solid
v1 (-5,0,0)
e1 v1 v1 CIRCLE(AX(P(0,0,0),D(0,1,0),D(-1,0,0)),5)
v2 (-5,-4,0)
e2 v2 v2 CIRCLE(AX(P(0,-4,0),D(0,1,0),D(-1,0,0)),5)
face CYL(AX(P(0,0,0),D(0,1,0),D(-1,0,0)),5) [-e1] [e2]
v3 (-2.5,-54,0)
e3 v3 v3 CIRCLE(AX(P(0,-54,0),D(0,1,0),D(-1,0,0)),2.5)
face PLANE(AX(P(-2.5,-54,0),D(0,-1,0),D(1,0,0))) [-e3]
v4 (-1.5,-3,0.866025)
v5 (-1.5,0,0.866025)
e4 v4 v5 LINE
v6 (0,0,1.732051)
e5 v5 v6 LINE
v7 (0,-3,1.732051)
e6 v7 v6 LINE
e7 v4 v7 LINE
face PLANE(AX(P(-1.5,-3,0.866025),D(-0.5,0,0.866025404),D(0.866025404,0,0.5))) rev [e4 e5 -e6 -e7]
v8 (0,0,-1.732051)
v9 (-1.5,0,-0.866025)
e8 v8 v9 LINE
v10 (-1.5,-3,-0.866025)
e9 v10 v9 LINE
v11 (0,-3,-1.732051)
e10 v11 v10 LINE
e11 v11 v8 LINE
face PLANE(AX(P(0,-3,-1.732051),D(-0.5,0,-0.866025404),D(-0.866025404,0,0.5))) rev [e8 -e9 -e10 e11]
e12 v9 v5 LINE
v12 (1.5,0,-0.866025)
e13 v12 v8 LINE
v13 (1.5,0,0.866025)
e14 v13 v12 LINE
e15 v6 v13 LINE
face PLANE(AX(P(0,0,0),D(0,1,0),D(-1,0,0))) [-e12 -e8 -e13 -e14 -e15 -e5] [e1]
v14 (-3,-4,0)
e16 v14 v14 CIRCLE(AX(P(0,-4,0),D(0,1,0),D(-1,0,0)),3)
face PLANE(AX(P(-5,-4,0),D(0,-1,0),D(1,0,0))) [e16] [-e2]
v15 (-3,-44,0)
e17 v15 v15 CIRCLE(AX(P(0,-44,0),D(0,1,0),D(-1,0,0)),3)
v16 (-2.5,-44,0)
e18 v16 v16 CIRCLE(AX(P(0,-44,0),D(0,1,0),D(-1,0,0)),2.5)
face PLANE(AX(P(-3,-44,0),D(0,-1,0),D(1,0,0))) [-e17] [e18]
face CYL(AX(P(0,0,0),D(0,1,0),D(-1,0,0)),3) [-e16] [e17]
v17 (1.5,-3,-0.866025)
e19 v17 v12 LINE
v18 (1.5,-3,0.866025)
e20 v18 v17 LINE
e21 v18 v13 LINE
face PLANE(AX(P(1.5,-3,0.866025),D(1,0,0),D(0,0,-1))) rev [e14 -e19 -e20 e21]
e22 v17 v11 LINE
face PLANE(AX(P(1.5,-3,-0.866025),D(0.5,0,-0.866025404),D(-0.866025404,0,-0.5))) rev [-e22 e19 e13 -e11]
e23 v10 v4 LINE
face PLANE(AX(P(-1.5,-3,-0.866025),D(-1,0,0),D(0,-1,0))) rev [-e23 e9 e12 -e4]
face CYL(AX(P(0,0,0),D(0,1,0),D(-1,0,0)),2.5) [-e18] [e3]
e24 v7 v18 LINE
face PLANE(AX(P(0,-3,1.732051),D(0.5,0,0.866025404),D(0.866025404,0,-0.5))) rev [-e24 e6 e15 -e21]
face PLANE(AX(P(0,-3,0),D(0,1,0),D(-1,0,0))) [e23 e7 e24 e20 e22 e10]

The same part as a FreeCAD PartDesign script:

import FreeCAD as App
import Part
import Sketcher
from FreeCAD import Vector
Q = App.Units.Quantity


def add_polygon(sketch, points):
    """Adds a closed chain of lines whose ends are joined by coincident constraints."""
    first, n = sketch.GeometryCount, len(points)
    for a, b in zip(points, points[1:] + points[:1]):
        sketch.addGeometry(Part.LineSegment(App.Vector(*a, 0), App.Vector(*b, 0)), False)
    for i in range(n):
        sketch.addConstraint(Sketcher.Constraint("Coincident", first + i, 2, first + (i + 1) % n, 1))

doc = App.newDocument("Part")
params = doc.addObject("Spreadsheet::Sheet", "Params")
for row, (alias, value) in enumerate([
    ("sketch1_width", "5 mm"),
    ("sketch1_width2", "2 mm"),
    ("sketch1_height", "4 mm"),
    ("sketch1_height2", "40 mm"),
    ("sketch1_height3", "10 mm"),
    ("revolution_angle", "360 deg"),
    ("pocket1_length", "3 mm"),
], start=1):
    params.set(f"A{row}", alias)
    params.set(f"B{row}", "=" + value)
    params.setAlias(f"B{row}", alias)

body = doc.addObject("PartDesign::Body", "Body")

# Sketch on XY plane
sketch1 = body.newObject("Sketcher::SketchObject", "Sketch")
sketch1.AttachmentSupport = (doc.getObject("XY_Plane"), [""])
sketch1.MapMode = "FlatFace"
add_polygon(sketch1, [(0, 0), (-5, 0), (-5, -4), (-3, -4), (-3, -44), (-2.5, -44), (-2.5, -54), (0, -54)])  # lines 0-7
sketch1.addConstraint([
    Sketcher.Constraint("Horizontal", 0),
    Sketcher.Constraint("Vertical", 1),
    Sketcher.Constraint("Horizontal", 2),
    Sketcher.Constraint("Vertical", 3),
    Sketcher.Constraint("Horizontal", 4),
    Sketcher.Constraint("Vertical", 5),
    Sketcher.Constraint("Horizontal", 6),
    Sketcher.Constraint("Vertical", 7),
    Sketcher.Constraint("Coincident", 7, 2, -1, 1),
    Sketcher.Constraint("DistanceX", 0, 2, 0, 1, Q("5 mm")),
    Sketcher.Constraint("DistanceX", 2, 1, 2, 2, Q("2 mm")),
    Sketcher.Constraint("DistanceY", 1, 2, 1, 1, Q("4 mm")),
    Sketcher.Constraint("DistanceY", 3, 2, 3, 1, Q("40 mm")),
    Sketcher.Constraint("DistanceY", 5, 2, 5, 1, Q("10 mm")),
    Sketcher.Constraint("DistanceX", 4, 1, 4, 2, Q("0.5 mm")),
])
sketch1.setExpression("Constraints[17]", "Params.sketch1_width")
sketch1.setExpression("Constraints[18]", "Params.sketch1_width2")
sketch1.setExpression("Constraints[19]", "Params.sketch1_height")
sketch1.setExpression("Constraints[20]", "Params.sketch1_height2")
sketch1.setExpression("Constraints[21]", "Params.sketch1_height3")
revolution = body.newObject("PartDesign::Revolution", "Revolution")
revolution.Profile = sketch1
revolution.ReferenceAxis = (sketch1, ["V_Axis"])
revolution.setExpression("Angle", "Params.revolution_angle")

# Sketch on XZ plane
sketch2 = body.newObject("Sketcher::SketchObject", "Sketch001")
sketch2.AttachmentSupport = (doc.getObject("XZ_Plane"), [""])
sketch2.MapMode = "FlatFace"
add_polygon(sketch2, [(1.5, -0.9), (0, -1.7), (-1.5, -0.9), (-1.5, 0.9), (0, 1.7), (1.5, 0.9)])  # lines 0-5
sketch2.addConstraint([
    Sketcher.Constraint("Vertical", 2),
    Sketcher.Constraint("Vertical", 5),
    Sketcher.Constraint("Symmetric", 0, 2, 3, 2, -1, 1),
    Sketcher.Constraint("Symmetric", 1, 2, 4, 2, -1, 1),
    Sketcher.Constraint("PointOnObject", 0, 2, -2),
    Sketcher.Constraint("Parallel", 0, 3),
    Sketcher.Constraint("Horizontal", 2, 2, 4, 2),
    Sketcher.Constraint("Angle", 0, Q("-150 deg")),
    Sketcher.Constraint("DistanceX", 2, 2, 4, 2, Q("3 mm")),
    Sketcher.Constraint("DistanceY", 2, 1, 2, 2, Q("1.732051 mm")),
])
pocket1 = body.newObject("PartDesign::Pocket", "Pocket")
pocket1.Profile = sketch2
pocket1.setExpression("Length", "Params.pocket1_length")
pocket1.Reversed = True

doc.recompute()
